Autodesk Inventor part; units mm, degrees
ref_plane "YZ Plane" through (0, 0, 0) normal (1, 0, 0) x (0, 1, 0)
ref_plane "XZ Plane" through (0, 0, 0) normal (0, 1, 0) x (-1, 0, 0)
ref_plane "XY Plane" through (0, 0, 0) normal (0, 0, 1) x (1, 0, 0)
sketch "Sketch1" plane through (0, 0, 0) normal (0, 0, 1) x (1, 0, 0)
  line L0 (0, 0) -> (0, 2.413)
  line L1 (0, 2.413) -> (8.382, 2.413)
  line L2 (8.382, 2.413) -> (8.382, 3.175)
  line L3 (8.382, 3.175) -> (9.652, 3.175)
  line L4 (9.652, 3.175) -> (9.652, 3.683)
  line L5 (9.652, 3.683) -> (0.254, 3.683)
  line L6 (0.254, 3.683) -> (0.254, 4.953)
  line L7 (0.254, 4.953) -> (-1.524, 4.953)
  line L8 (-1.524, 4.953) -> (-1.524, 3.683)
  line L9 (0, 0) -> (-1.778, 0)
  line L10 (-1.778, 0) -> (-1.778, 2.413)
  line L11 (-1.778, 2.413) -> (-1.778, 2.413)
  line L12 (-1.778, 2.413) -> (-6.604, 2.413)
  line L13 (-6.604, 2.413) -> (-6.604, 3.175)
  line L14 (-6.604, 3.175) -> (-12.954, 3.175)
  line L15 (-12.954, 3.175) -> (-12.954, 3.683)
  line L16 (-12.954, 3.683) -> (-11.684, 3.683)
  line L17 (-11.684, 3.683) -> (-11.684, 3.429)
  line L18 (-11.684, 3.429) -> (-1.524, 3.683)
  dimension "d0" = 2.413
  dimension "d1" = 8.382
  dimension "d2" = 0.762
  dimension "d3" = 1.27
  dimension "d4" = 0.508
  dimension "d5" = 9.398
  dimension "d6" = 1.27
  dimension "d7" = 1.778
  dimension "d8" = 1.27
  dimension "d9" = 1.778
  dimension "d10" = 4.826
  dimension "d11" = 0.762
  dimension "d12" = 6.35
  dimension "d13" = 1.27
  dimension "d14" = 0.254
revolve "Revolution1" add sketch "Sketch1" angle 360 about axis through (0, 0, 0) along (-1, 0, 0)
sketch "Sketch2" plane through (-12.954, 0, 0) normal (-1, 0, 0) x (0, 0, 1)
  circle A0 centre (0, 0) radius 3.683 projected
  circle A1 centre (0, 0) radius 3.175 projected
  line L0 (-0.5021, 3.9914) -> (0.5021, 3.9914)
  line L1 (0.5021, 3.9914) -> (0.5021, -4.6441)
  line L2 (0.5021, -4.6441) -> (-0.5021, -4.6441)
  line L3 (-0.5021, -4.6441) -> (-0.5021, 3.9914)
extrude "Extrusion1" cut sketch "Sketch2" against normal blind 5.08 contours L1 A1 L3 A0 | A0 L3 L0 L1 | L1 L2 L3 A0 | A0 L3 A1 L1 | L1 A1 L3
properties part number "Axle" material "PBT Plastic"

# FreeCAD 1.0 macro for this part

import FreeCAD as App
import Part
import Sketcher
Q = App.Units.Quantity

doc = App.newDocument("Part")
body = doc.addObject("PartDesign::Body", "Body")

# Sketch on XY plane
sketch1 = body.newObject("Sketcher::SketchObject", "Sketch")
sketch1.AttachmentSupport = (doc.getObject("XY_Plane"), [""])
sketch1.MapMode = "FlatFace"
sketch1.addGeometry([
    Part.LineSegment(App.Vector(-1.778, 0, 0), App.Vector(0, 0, 0)),  # 0
    Part.LineSegment(App.Vector(0, 0, 0), App.Vector(0, 2.413, 0)),  # 1
    Part.LineSegment(App.Vector(0, 2.413, 0), App.Vector(8.382, 2.413, 0)),  # 2
    Part.LineSegment(App.Vector(8.382, 2.413, 0), App.Vector(8.382, 3.175, 0)),  # 3
    Part.LineSegment(App.Vector(8.382, 3.175, 0), App.Vector(9.652, 3.175, 0)),  # 4
    Part.LineSegment(App.Vector(9.652, 3.175, 0), App.Vector(9.652, 3.683, 0)),  # 5
    Part.LineSegment(App.Vector(9.652, 3.683, 0), App.Vector(0.254, 3.683, 0)),  # 6
    Part.LineSegment(App.Vector(0.254, 3.683, 0), App.Vector(0.254, 4.953, 0)),  # 7
    Part.LineSegment(App.Vector(0.254, 4.953, 0), App.Vector(-1.524, 4.953, 0)),  # 8
    Part.LineSegment(App.Vector(-1.524, 4.953, 0), App.Vector(-1.524, 3.683, 0)),  # 9
    Part.LineSegment(App.Vector(-1.524, 3.683, 0), App.Vector(-11.684, 3.429, 0)),  # 10
    Part.LineSegment(App.Vector(-11.684, 3.429, 0), App.Vector(-11.684, 3.683, 0)),  # 11
    Part.LineSegment(App.Vector(-11.684, 3.683, 0), App.Vector(-12.954, 3.683, 0)),  # 12
    Part.LineSegment(App.Vector(-12.954, 3.683, 0), App.Vector(-12.954, 3.175, 0)),  # 13
    Part.LineSegment(App.Vector(-12.954, 3.175, 0), App.Vector(-6.604, 3.175, 0)),  # 14
    Part.LineSegment(App.Vector(-6.604, 3.175, 0), App.Vector(-6.604, 2.413, 0)),  # 15
    Part.LineSegment(App.Vector(-6.604, 2.413, 0), App.Vector(-1.778, 2.413, 0)),  # 16
    Part.LineSegment(App.Vector(-1.778, 2.413, 0), App.Vector(-1.778, 0, 0)),  # 17
], False)
sketch1.addConstraint([
    Sketcher.Constraint("Coincident", 0, 2, 1, 1),
    Sketcher.Constraint("Coincident", 1, 2, 2, 1),
    Sketcher.Constraint("Coincident", 2, 2, 3, 1),
    Sketcher.Constraint("Coincident", 3, 2, 4, 1),
    Sketcher.Constraint("Coincident", 4, 2, 5, 1),
    Sketcher.Constraint("Coincident", 5, 2, 6, 1),
    Sketcher.Constraint("Coincident", 6, 2, 7, 1),
    Sketcher.Constraint("Coincident", 7, 2, 8, 1),
    Sketcher.Constraint("Coincident", 8, 2, 9, 1),
    Sketcher.Constraint("Coincident", 9, 2, 10, 1),
    Sketcher.Constraint("Coincident", 10, 2, 11, 1),
    Sketcher.Constraint("Coincident", 11, 2, 12, 1),
    Sketcher.Constraint("Coincident", 12, 2, 13, 1),
    Sketcher.Constraint("Coincident", 13, 2, 14, 1),
    Sketcher.Constraint("Coincident", 14, 2, 15, 1),
    Sketcher.Constraint("Coincident", 15, 2, 16, 1),
    Sketcher.Constraint("Coincident", 16, 2, 17, 1),
    Sketcher.Constraint("Coincident", 17, 2, 0, 1),
    Sketcher.Constraint("Horizontal", 0),
    Sketcher.Constraint("Vertical", 1),
    Sketcher.Constraint("Horizontal", 2),
    Sketcher.Constraint("Vertical", 3),
    Sketcher.Constraint("Horizontal", 4),
    Sketcher.Constraint("Vertical", 5),
    Sketcher.Constraint("Horizontal", 6),
    Sketcher.Constraint("Vertical", 7),
    Sketcher.Constraint("Horizontal", 8),
    Sketcher.Constraint("Vertical", 9),
    Sketcher.Constraint("Vertical", 11),
    Sketcher.Constraint("Horizontal", 12),
    Sketcher.Constraint("Vertical", 13),
    Sketcher.Constraint("Horizontal", 14),
    Sketcher.Constraint("Vertical", 15),
    Sketcher.Constraint("Horizontal", 16),
    Sketcher.Constraint("Vertical", 17),
    Sketcher.Constraint("Coincident", 0, 2, -1, 1),
    Sketcher.Constraint("Horizontal", 6, 2, 9, 2),
    Sketcher.Constraint("Horizontal", 9, 2, 11, 2),
    Sketcher.Constraint("Horizontal", 4, 2, 13, 2),
    Sketcher.Constraint("Horizontal", 2, 2, 15, 2),
    Sketcher.Constraint("Equal", 0, 8),
    Sketcher.Constraint("Equal", 4, 12),
    Sketcher.Constraint("Equal", 12, 7),
    Sketcher.Constraint("DistanceX", 0, 1, 0, 2, Q("0.07 in")),
    Sketcher.Constraint("DistanceX", 2, 1, 2, 2, Q("0.33 in")),
    Sketcher.Constraint("DistanceX", 4, 1, 4, 2, Q("0.05 in")),
    Sketcher.Constraint("DistanceX", 6, 2, 6, 1, Q("0.37 in")),
    Sketcher.Constraint("DistanceX", 14, 1, 14, 2, Q("0.25 in")),
    Sketcher.Constraint("DistanceX", 16, 1, 16, 2, Q("0.19 in")),
    Sketcher.Constraint("DistanceY", 3, 1, 3, 2, Q("0.03 in")),
    Sketcher.Constraint("DistanceY", 5, 1, 5, 2, Q("0.02 in")),
    Sketcher.Constraint("DistanceY", 11, 1, 11, 2, Q("0.01 in")),
    Sketcher.Constraint("DistanceY", 1, 1, 1, 2, Q("0.095 in")),
])
revolution = body.newObject("PartDesign::Revolution", "Revolution")
revolution.Profile = sketch1
revolution.ReferenceAxis = (sketch1, ["H_Axis"])
revolution.Angle = 360

# Sketch on YZ plane
sketch2 = body.newObject("Sketcher::SketchObject", "Sketch001")
sketch2.AttachmentSupport = (doc.getObject("YZ_Plane"), [""])
sketch2.MapMode = "FlatFace"
sketch2.AttachmentOffset = App.Placement(App.Vector(0, 0, -0.51 * 25.4), App.Rotation())
sketch2.addGeometry([
    Part.LineSegment(App.Vector(3.9914, 0.5021, 0), App.Vector(3.9914, -0.5021, 0)),
    Part.LineSegment(App.Vector(3.9914, -0.5021, 0), App.Vector(-4.6441, -0.5021, 0)),
    Part.LineSegment(App.Vector(-4.6441, -0.5021, 0), App.Vector(-4.6441, 0.5021, 0)),
    Part.LineSegment(App.Vector(-4.6441, 0.5021, 0), App.Vector(3.9914, 0.5021, 0)),
], False)
sketch2.addConstraint([
    Sketcher.Constraint("Coincident", 0, 2, 1, 1),
    Sketcher.Constraint("Coincident", 1, 2, 2, 1),
    Sketcher.Constraint("Coincident", 2, 2, 3, 1),
    Sketcher.Constraint("Coincident", 3, 2, 0, 1),
    Sketcher.Constraint("Vertical", 0),
    Sketcher.Constraint("Horizontal", 1),
    Sketcher.Constraint("Vertical", 2),
    Sketcher.Constraint("Horizontal", 3),
    Sketcher.Constraint("DistanceX", 1, 2, 1, 1, Q("8.6355 mm")),
    Sketcher.Constraint("DistanceY", 0, 2, 0, 1, Q("1.0042 mm")),
    Sketcher.Constraint("DistanceX", -1, 1, 0, 2, Q("3.9914 mm")),
    Sketcher.Constraint("DistanceY", 0, 2, -1, 1, Q("0.502 mm")),
])
pocket1 = body.newObject("PartDesign::Pocket", "Pocket")
pocket1.Profile = sketch2
pocket1.Length = Q("0.2 in")
pocket1.Reversed = True

doc.recompute()
